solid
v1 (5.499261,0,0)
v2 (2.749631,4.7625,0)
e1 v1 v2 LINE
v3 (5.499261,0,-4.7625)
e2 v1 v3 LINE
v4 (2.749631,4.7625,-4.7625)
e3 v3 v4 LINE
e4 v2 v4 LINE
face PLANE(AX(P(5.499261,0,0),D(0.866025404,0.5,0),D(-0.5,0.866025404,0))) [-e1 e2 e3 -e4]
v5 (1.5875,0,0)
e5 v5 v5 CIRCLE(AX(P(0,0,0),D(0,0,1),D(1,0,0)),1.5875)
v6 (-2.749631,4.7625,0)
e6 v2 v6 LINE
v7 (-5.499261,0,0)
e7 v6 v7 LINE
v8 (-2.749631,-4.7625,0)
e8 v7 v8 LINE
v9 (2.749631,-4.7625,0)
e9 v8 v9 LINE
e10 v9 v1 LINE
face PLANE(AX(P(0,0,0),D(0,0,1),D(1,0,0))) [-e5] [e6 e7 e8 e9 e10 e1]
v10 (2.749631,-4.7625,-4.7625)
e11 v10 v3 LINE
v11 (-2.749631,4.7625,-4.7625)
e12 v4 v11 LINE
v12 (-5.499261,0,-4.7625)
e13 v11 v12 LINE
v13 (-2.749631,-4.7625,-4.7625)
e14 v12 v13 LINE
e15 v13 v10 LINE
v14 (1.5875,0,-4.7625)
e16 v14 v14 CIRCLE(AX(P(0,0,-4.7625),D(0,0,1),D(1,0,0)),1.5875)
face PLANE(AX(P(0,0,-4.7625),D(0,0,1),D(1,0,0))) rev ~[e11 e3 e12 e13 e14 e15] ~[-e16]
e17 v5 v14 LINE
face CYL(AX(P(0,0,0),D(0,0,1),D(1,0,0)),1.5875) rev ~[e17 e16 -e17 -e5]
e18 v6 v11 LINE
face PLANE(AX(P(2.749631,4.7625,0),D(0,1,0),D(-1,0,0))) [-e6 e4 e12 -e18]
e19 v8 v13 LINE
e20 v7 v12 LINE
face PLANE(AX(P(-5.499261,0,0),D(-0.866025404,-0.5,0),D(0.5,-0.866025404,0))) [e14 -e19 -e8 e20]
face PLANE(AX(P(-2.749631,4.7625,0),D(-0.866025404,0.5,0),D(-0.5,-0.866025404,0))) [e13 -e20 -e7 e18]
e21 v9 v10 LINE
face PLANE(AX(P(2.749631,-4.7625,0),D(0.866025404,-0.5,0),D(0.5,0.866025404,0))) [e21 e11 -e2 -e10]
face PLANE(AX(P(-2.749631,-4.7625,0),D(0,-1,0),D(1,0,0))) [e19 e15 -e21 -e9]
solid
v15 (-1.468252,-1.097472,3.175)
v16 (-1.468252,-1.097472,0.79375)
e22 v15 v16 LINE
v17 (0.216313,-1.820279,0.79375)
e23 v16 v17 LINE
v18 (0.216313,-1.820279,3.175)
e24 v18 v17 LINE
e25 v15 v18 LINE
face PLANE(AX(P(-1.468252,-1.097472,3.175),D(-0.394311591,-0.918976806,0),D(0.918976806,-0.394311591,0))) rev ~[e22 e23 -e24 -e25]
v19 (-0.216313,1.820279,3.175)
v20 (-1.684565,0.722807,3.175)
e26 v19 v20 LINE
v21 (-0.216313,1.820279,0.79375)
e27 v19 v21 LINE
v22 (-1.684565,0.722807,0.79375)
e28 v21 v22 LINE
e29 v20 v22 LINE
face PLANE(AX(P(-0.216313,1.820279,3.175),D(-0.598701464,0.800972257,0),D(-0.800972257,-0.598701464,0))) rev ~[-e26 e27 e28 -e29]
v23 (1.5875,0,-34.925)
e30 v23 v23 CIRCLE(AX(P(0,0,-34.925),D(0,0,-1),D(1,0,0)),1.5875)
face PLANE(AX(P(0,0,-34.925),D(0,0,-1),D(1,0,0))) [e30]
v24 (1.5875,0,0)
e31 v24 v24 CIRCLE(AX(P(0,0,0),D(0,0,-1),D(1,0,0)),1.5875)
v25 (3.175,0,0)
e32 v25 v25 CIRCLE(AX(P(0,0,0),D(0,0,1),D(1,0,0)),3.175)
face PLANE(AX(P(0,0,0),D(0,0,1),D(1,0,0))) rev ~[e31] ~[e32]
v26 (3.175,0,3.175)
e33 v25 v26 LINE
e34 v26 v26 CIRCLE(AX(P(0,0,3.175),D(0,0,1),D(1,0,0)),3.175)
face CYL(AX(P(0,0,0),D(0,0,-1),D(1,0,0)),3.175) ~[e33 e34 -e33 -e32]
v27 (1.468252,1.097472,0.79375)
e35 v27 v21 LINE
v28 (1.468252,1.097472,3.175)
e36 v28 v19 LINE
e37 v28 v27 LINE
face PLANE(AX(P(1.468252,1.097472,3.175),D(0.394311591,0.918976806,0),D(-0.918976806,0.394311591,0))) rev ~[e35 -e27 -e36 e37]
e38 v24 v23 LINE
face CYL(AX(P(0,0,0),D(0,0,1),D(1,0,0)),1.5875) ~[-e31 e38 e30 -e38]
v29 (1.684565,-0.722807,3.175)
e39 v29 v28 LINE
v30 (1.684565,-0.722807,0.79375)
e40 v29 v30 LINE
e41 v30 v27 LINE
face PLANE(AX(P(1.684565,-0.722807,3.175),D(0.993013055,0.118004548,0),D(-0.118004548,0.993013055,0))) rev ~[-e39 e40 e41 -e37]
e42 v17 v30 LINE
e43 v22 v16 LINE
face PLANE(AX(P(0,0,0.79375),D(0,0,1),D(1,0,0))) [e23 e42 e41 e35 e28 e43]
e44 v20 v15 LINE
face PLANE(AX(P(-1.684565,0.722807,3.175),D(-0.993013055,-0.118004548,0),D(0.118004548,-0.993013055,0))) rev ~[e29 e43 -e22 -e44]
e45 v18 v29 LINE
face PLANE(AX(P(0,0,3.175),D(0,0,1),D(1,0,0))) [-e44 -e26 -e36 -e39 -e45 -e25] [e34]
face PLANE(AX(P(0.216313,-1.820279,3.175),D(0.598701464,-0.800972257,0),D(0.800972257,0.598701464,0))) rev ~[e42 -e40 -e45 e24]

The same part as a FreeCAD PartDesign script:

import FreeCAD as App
import Part
import Sketcher
from FreeCAD import Vector
Q = App.Units.Quantity


def add_polygon(sketch, points):
    """Adds a closed chain of lines whose ends are joined by coincident constraints."""
    first, n = sketch.GeometryCount, len(points)
    for a, b in zip(points, points[1:] + points[:1]):
        sketch.addGeometry(Part.LineSegment(App.Vector(*a, 0), App.Vector(*b, 0)), False)
    for i in range(n):
        sketch.addConstraint(Sketcher.Constraint("Coincident", first + i, 2, first + (i + 1) % n, 1))

doc = App.newDocument("Part")
body = doc.addObject("PartDesign::Body", "Body")

# Sketch on XY plane
sketch1 = body.newObject("Sketcher::SketchObject", "Sketch")
sketch1.AttachmentSupport = (doc.getObject("XY_Plane"), [""])
sketch1.MapMode = "FlatFace"
add_polygon(sketch1, [(-2.7, -4.8), (2.7, -4.8), (5.5, 0), (2.7, 4.8), (-2.7, 4.8), (-5.5, 0)])  # lines 0-5
sketch1.addGeometry(Part.Circle(Vector(0, 0, 0), Vector(0, 0, 1), 1.6), False)  # 6
sketch1.addConstraint([
    Sketcher.Constraint("Horizontal", 0),
    Sketcher.Constraint("Horizontal", 3),
    Sketcher.Constraint("Coincident", 6, 3, -1, 1),
    Sketcher.Constraint("Symmetric", 0, 2, 3, 2, -1, 1),
    Sketcher.Constraint("Symmetric", 1, 2, 4, 2, -1, 1),
    Sketcher.Constraint("PointOnObject", 1, 2, -1),
    Sketcher.Constraint("Parallel", 2, 5),
    Sketcher.Constraint("Vertical", 0, 2, 2, 2),
    Sketcher.Constraint("Diameter", 6, Q("0.125 in")),
    Sketcher.Constraint("Angle", 1, Q("60 deg")),
    Sketcher.Constraint("DistanceY", 0, 2, -1, 1, Q("0.1875 in")),
    Sketcher.Constraint("DistanceX", 0, 1, 0, 2, 5.499261),
])
pad1 = body.newObject("PartDesign::Pad", "Pad")
pad1.Profile = sketch1
pad1.Length = Q("0.1875 in")
pad1.Reversed = True
body2 = doc.addObject("PartDesign::Body", "Body001")

# Sketch on XY plane
sketch2 = body2.newObject("Sketcher::SketchObject", "Sketch001")
sketch2.AttachmentSupport = (doc.getObject("XY_Plane001"), [""])
sketch2.MapMode = "FlatFace"
sketch2.addGeometry(Part.Circle(Vector(0, 0, 0), Vector(0, 0, 1), 3.2), False)
sketch2.addConstraint([
    Sketcher.Constraint("Coincident", 0, 3, -1, 1),
    Sketcher.Constraint("Diameter", 0, Q("0.25 in")),
])
pad2 = body2.newObject("PartDesign::Pad", "Pad001")
pad2.Profile = sketch2
pad2.Length = Q("0.125 in")

# Sketch on XY plane
sketch3 = body2.newObject("Sketcher::SketchObject", "Sketch002")
sketch3.AttachmentSupport = (doc.getObject("XY_Plane001"), [""])
sketch3.MapMode = "FlatFace"
sketch3.AttachmentOffset = App.Placement(Vector(0, 0, 0.125 * 25.4), App.Rotation())
add_polygon(sketch3, [(-1.7, 0.6), (-1.4, -1.2), (0.3, -1.8), (1.7, -0.6), (1.4, 1.2), (-0.3, 1.8)])  # lines 0-5
sketch3.addConstraint([
    Sketcher.Constraint("Symmetric", 0, 2, 3, 2, -1, 1),
    Sketcher.Constraint("Symmetric", 1, 2, 4, 2, -1, 1),
    Sketcher.Constraint("Symmetric", 2, 2, 5, 2, -1, 1),
    Sketcher.Constraint("Equal", 0, 1),
    Sketcher.Constraint("Equal", 1, 2),
    Sketcher.Constraint("DistanceY", 0, 2, -1, 1, 1.1839),
    Sketcher.Constraint("DistanceY", 1, 2, 2, 2, 1.1839),
    Sketcher.Constraint("DistanceY", 1, 2, 4, 2, 3.607898),
    Sketcher.Constraint("DistanceX", -1, 1, 1, 2, 0.32554),
])
pad3 = body2.newObject("PartDesign::Pad", "Pad002")
pad3.Profile = sketch3
pad3.Length = Q("0.12 in")
pad3.Reversed = True

# Sketch on XY plane
sketch4 = body2.newObject("Sketcher::SketchObject", "Sketch003")
sketch4.AttachmentSupport = (doc.getObject("XY_Plane001"), [""])
sketch4.MapMode = "FlatFace"
sketch4.AttachmentOffset = App.Placement(Vector(0, 0, 0.125 * 25.4), App.Rotation())
add_polygon(sketch4, [(-0.1, -1.8), (1.5, -1), (1.6, 0.8), (0.1, 1.8), (-1.5, 1), (-1.6, -0.8)])  # lines 0-5
sketch4.addConstraint([
    Sketcher.Constraint("Symmetric", 0, 2, 3, 2, -1, 1),
    Sketcher.Constraint("Symmetric", 1, 2, 4, 2, -1, 1),
    Sketcher.Constraint("Symmetric", 2, 2, 5, 2, -1, 1),
    Sketcher.Constraint("Equal", 0, 1),
    Sketcher.Constraint("Equal", 1, 2),
    Sketcher.Constraint("DistanceX", -1, 1, 0, 2, 1.542009),
    Sketcher.Constraint("DistanceY", 0, 2, -1, 1, 0.991169),
    Sketcher.Constraint("DistanceX", 2, 2, 1, 2, 1.542009),
    Sketcher.Constraint("DistanceY", 1, 2, 2, 2, 0.991169),
])
pocket1 = body2.newObject("PartDesign::Pocket", "Pocket")
pocket1.Profile = sketch4
pocket1.Length = Q("0.125 in")
body3 = doc.addObject("PartDesign::Body", "Body002")

# Sketch on XY plane
sketch5 = body3.newObject("Sketcher::SketchObject", "Sketch004")
sketch5.AttachmentSupport = (doc.getObject("XY_Plane002"), [""])
sketch5.MapMode = "FlatFace"
sketch5.addGeometry(Part.Circle(Vector(0, 0, 0), Vector(0, 0, 1), 1.6), False)
sketch5.addConstraint([
    Sketcher.Constraint("Coincident", 0, 3, -1, 1),
    Sketcher.Constraint("Diameter", 0, Q("0.125 in")),
])
pad4 = body3.newObject("PartDesign::Pad", "Pad003")
pad4.Profile = sketch5
pad4.Length = Q("1.375 in")
pad4.Reversed = True
body4 = doc.addObject("PartDesign::Body", "Body003")

# Sketch on XY plane
sketch6 = body4.newObject("Sketcher::SketchObject", "Sketch005")
sketch6.AttachmentSupport = (doc.getObject("XY_Plane003"), [""])
sketch6.MapMode = "FlatFace"
add_polygon(sketch6, [(5.4, 1), (1.8, 5.2), (-3.6, 4.2), (-5.4, -1), (-1.8, -5.2), (3.6, -4.2)])  # lines 0-5
sketch6.addGeometry(Part.Circle(Vector(0, 0, 0), Vector(0, 0, 1), 1.6), False)  # 6
sketch6.addConstraint([
    Sketcher.Constraint("Coincident", 6, 3, -1, 1),
    Sketcher.Constraint("Symmetric", 0, 2, 3, 2, -1, 1),
    Sketcher.Constraint("Symmetric", 1, 2, 4, 2, -1, 1),
    Sketcher.Constraint("Symmetric", 2, 2, 5, 2, -1, 1),
    Sketcher.Constraint("Equal", 0, 1),
    Sketcher.Constraint("Equal", 1, 2),
    Sketcher.Constraint("Diameter", 6, Q("0.125 in")),
    Sketcher.Constraint("Distance", 0, 5.499261),
    Sketcher.Constraint("DistanceX", -1, 1, 0, 2, 1.80338),
    Sketcher.Constraint("DistanceY", -1, 1, 0, 2, 5.195161),
    Sketcher.Constraint("DistanceX", 1, 2, -1, 1, 3.597452),
])
pad5 = body4.newObject("PartDesign::Pad", "Pad004")
pad5.Profile = sketch6
pad5.Length = Q("1 in")
body5 = doc.addObject("PartDesign::Body", "Body004")

# Sketch on XY plane
sketch7 = body5.newObject("Sketcher::SketchObject", "Sketch006")
sketch7.AttachmentSupport = (doc.getObject("XY_Plane004"), [""])
sketch7.MapMode = "FlatFace"
sketch7.addGeometry(Part.Circle(Vector(0, 0, 0), Vector(0, 0, 1), 3.2), False)
sketch7.addConstraint([
    Sketcher.Constraint("Coincident", 0, 3, -1, 1),
    Sketcher.Constraint("Diameter", 0, Q("0.25 in")),
])
pad6 = body5.newObject("PartDesign::Pad", "Pad005")
pad6.Profile = sketch7
pad6.Length = Q("0.125 in")

# Sketch on XY plane
sketch8 = body5.newObject("Sketcher::SketchObject", "Sketch007")
sketch8.AttachmentSupport = (doc.getObject("XY_Plane004"), [""])
sketch8.MapMode = "FlatFace"
sketch8.addGeometry(Part.Circle(Vector(0, 0, 0), Vector(0, 0, 1), 1.6), False)
sketch8.addConstraint([
    Sketcher.Constraint("Coincident", 0, 3, -1, 1),
    Sketcher.Constraint("Diameter", 0, Q("0.125 in")),
])
pad7 = body5.newObject("PartDesign::Pad", "Pad006")
pad7.Profile = sketch8
pad7.Length = Q("1.375 in")
pad7.Reversed = True

# Sketch on XY plane
sketch9 = body5.newObject("Sketcher::SketchObject", "Sketch008")
sketch9.AttachmentSupport = (doc.getObject("XY_Plane004"), [""])
sketch9.MapMode = "FlatFace"
sketch9.AttachmentOffset = App.Placement(Vector(0, 0, 0.125 * 25.4), App.Rotation())
add_polygon(sketch9, [(-0.2, 1.8), (-1.7, 0.7), (-1.5, -1.1), (0.2, -1.8), (1.7, -0.7), (1.5, 1.1)])  # lines 0-5
sketch9.addConstraint([
    Sketcher.Constraint("Symmetric", 0, 2, 3, 2, -1, 1),
    Sketcher.Constraint("Symmetric", 1, 2, 4, 2, -1, 1),
    Sketcher.Constraint("Symmetric", 2, 2, 5, 2, -1, 1),
    Sketcher.Constraint("Equal", 0, 1),
    Sketcher.Constraint("Equal", 1, 2),
    Sketcher.Constraint("DistanceX", 1, 2, -1, 1, 1.468252),
    Sketcher.Constraint("DistanceY", 1, 2, -1, 1, 1.097472),
    Sketcher.Constraint("DistanceY", 2, 2, -1, 1, 1.820279),
    Sketcher.Constraint("DistanceY", 1, 2, 0, 2, 1.820279),
])
pocket2 = body5.newObject("PartDesign::Pocket", "Pocket001")
pocket2.Profile = sketch9
pocket2.Length = Q("0.09375 in")
body2.Visibility = False
body3.Visibility = False
body4.Visibility = False

doc.recompute()
